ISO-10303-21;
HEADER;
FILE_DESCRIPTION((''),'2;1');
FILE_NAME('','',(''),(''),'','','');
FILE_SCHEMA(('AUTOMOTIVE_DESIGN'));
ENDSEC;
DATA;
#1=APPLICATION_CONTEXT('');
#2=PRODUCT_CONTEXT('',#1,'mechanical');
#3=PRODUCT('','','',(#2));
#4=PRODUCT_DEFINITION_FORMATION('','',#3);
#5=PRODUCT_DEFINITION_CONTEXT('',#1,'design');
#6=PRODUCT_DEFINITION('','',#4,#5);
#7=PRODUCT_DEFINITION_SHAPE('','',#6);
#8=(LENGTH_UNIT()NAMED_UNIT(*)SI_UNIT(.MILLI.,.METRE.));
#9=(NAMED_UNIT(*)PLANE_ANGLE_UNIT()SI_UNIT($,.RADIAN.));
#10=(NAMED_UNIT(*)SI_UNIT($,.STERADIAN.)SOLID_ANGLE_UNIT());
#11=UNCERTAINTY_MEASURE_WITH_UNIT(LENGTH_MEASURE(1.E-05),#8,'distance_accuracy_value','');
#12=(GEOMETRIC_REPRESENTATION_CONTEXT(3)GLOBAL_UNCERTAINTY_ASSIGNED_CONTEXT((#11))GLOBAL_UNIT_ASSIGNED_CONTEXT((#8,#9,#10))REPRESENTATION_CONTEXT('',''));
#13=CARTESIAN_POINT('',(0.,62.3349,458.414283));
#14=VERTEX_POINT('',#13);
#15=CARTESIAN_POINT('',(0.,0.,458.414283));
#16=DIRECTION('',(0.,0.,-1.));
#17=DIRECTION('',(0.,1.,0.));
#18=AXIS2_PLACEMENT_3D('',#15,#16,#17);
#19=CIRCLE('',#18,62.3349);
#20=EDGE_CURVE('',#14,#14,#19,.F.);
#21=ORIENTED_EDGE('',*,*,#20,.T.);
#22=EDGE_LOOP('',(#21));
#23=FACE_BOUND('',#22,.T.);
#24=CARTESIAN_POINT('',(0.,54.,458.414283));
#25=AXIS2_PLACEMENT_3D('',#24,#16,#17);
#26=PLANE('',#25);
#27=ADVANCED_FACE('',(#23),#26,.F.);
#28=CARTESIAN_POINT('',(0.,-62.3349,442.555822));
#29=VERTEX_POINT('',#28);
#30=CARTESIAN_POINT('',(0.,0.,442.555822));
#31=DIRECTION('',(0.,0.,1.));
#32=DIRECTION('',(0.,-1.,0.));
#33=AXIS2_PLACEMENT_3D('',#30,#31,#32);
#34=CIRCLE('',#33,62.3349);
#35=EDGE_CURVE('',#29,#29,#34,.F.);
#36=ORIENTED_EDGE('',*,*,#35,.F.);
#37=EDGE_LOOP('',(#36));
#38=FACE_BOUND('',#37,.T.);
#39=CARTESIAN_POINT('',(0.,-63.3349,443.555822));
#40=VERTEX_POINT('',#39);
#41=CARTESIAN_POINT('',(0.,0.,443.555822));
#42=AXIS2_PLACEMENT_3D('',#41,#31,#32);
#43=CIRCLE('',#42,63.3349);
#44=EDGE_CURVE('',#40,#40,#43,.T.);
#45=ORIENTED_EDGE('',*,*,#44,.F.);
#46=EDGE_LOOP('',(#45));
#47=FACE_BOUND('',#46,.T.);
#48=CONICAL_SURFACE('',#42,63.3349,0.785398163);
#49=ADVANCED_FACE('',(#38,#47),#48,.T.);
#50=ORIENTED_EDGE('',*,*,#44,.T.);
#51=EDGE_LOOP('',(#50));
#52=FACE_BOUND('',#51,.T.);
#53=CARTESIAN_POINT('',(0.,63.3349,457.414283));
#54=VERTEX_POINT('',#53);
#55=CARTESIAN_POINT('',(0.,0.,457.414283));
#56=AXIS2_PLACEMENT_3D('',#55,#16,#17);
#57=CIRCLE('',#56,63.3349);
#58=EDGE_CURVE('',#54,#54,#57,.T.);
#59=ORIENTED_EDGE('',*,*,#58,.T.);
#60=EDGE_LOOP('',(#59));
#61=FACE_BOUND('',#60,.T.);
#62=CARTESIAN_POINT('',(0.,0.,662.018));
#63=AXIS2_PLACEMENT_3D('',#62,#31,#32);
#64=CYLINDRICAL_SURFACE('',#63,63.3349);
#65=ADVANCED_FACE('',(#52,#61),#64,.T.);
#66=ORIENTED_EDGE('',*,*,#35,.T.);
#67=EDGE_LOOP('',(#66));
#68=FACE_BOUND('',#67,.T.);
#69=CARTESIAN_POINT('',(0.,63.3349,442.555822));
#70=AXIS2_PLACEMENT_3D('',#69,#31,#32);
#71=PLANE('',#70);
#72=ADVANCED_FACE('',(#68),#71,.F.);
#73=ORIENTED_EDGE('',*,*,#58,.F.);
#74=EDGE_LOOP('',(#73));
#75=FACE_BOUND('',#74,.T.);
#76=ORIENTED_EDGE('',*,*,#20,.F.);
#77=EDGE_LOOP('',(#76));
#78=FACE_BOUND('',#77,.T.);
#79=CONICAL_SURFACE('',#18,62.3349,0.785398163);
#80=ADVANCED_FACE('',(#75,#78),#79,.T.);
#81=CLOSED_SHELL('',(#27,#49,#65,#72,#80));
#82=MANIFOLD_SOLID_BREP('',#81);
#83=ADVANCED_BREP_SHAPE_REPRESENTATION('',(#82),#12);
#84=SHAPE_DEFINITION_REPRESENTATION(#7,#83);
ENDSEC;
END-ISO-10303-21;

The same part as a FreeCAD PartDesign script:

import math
import FreeCAD as App
import Part
import Sketcher
from FreeCAD import Vector
Q = App.Units.Quantity


def edges_at(feature, points):
    """Names of the edges that pass closest to the given points."""
    edges = feature.Shape.Edges
    near = lambda p: min(range(len(edges)), key=lambda i: edges[i].distToShape(Part.Vertex(*p))[0])
    return sorted({f"Edge{near(p) + 1}" for p in points})

doc = App.newDocument("Part")
body = doc.addObject("PartDesign::Body", "Body")

# Sketch on YZ plane
sketch1 = doc.addObject("Sketcher::SketchObject", "Sketch")
body.addObject(sketch1)
sketch1.AttachmentSupport = (doc.YZ_Plane, [""])
sketch1.MapMode = "FlatFace"
sketch1.addGeometry([
    Part.LineSegment(Vector(63, 458, 0), Vector(54, 458, 0)),  # 0
    Part.ArcOfCircle(Part.Circle(Vector(0, 662, 0), Vector(0, 0, 1), 211), math.radians(-90), math.radians(-75.15)),  # 1
    Part.LineSegment(Vector(0, 451, 0), Vector(0, 444, 0)),  # 2
    Part.ArcOfCircle(Part.Circle(Vector(0, -662, 0), Vector(0, 0, 1), 1106), math.radians(87.2), math.radians(90)),  # 3
    Part.LineSegment(Vector(54, 443, 0), Vector(63, 443, 0)),  # 4
    Part.LineSegment(Vector(63, 443, 0), Vector(63, 458, 0)),  # 5
], False)
sketch1.addConstraint([
    Sketcher.Constraint("Coincident", 0, 2, 1, 2),
    Sketcher.Constraint("Coincident", 1, 1, 2, 1),
    Sketcher.Constraint("Coincident", 2, 2, 3, 2),
    Sketcher.Constraint("Coincident", 3, 1, 4, 1),
    Sketcher.Constraint("Coincident", 4, 2, 5, 1),
    Sketcher.Constraint("Coincident", 5, 2, 0, 1),
    Sketcher.Constraint("Horizontal", 0),
    Sketcher.Constraint("Vertical", 2),
    Sketcher.Constraint("Horizontal", 4),
    Sketcher.Constraint("Vertical", 5),
    Sketcher.Constraint("Symmetric", 1, 3, 3, 3, -1, 1),
    Sketcher.Constraint("PointOnObject", 1, 3, -2),
    Sketcher.Constraint("PointOnObject", 1, 1, -2),
    Sketcher.Constraint("Equal", 0, 4),
    Sketcher.Constraint("DistanceY", 2, 2, 2, 1, Q("7.5 mm")),
    Sketcher.Constraint("DistanceX", -1, 1, 0, 2, Q("54 mm")),
    Sketcher.Constraint("Radius", 1, Q("210.643 mm")),
    Sketcher.Constraint("Radius", 3, Q("1105.892999 mm")),
    Sketcher.Constraint("DistanceX", 0, 2, 0, 1, Q("9.3349 mm")),
])
revolution = doc.addObject("PartDesign::Revolution", "Revolution")
body.addObject(revolution)
revolution.Profile = sketch1
revolution.ReferenceAxis = (sketch1, ["V_Axis"])
revolution.Angle = 360
doc.recompute()

chamfer = doc.addObject("PartDesign::Chamfer", "Chamfer")
body.addObject(chamfer)
chamfer.Base = (revolution, edges_at(revolution, [(0, -63.335, 442.556), (0, -63.335, 458.414)]))
chamfer.Size = 1

# Sketch on XY plane
sketch2 = doc.addObject("Sketcher::SketchObject", "Sketch001")
body.addObject(sketch2)
sketch2.AttachmentSupport = (doc.XY_Plane, [""])
sketch2.MapMode = "FlatFace"
sketch2.AttachmentOffset = App.Placement(Vector(0, 0, 458.414283), App.Rotation())
sketch2.addGeometry(Part.Circle(Vector(0, 0, 0), Vector(0, 0, 1), 54), False)
sketch2.addConstraint([
    Sketcher.Constraint("Coincident", 0, 3, -1, 1),
    Sketcher.Constraint("Diameter", 0, Q("108 mm")),
])
pad1 = doc.addObject("PartDesign::Pad", "Pad")
body.addObject(pad1)
pad1.Profile = sketch2
pad1.Length = 15.858462
pad1.Reversed = True

doc.recompute()
